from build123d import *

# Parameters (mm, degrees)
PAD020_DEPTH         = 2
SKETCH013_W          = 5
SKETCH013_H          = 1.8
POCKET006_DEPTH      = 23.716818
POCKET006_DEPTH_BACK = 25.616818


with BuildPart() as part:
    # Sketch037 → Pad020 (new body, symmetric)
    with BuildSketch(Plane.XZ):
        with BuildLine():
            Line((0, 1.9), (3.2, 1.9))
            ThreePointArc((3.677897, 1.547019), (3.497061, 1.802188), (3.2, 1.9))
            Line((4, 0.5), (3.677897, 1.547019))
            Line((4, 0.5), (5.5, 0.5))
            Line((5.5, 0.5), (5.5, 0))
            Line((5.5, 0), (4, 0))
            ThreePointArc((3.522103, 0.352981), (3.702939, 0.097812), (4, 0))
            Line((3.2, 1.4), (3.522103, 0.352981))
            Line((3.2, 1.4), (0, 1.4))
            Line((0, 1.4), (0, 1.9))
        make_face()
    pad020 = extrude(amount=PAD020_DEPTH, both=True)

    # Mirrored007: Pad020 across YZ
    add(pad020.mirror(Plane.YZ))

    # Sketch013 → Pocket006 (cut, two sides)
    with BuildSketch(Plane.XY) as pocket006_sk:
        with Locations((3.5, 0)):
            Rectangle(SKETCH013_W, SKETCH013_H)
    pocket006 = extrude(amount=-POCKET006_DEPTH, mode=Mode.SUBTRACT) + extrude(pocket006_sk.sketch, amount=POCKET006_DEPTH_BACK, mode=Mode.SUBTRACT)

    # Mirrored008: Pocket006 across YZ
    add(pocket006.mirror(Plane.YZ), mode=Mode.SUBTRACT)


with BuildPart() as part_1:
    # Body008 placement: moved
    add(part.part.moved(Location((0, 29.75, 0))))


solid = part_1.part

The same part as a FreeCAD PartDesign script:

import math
import FreeCAD as App
import Part
import Sketcher

V = App.Vector
Q = App.Units.Quantity


def add_polygon(sketch, points):
    """Adds a closed chain of lines whose ends are joined by coincident constraints."""
    first, n = sketch.GeometryCount, len(points)
    for a, b in zip(points, points[1:] + points[:1]):
        sketch.addGeometry(Part.LineSegment(App.Vector(*a, 0), App.Vector(*b, 0)), False)
    for i in range(n):
        sketch.addConstraint(Sketcher.Constraint("Coincident", first + i, 2, first + (i + 1) % n, 1))

doc = App.newDocument("Part")
params = doc.addObject("Spreadsheet::Sheet", "Params")
for row, (alias, value) in enumerate([
    ("sketch1_radius", "0.499999 mm"),
    ("sketch1_width", "3.2 mm"),
    ("sketch1_width2", "1.5 mm"),
    ("pad1_length", "4 mm"),
    ("sketch2_width", "5 mm"),
    ("sketch2_height", "1.8 mm"),
], start=1):
    params.set(f"A{row}", alias)
    params.set(f"B{row}", "=" + value)
    params.setAlias(f"B{row}", alias)

body = doc.addObject("PartDesign::Body", "Body")

sketch1 = body.newObject("Sketcher::SketchObject", "Sketch")
sketch1.AttachmentSupport = (doc.getObject("XZ_Plane"), [""])
sketch1.MapMode = "FlatFace"
sketch1.addGeometry(Part.LineSegment(V(3.2, 1.9, 0), V(0, 1.9, 0)), False)
sketch1.addGeometry(Part.LineSegment(V(0, 1.9, 0), V(0, 1.4, 0)), False)
sketch1.addGeometry(Part.LineSegment(V(0, 1.4, 0), V(3.2, 1.4, 0)), False)
sketch1.addGeometry(Part.LineSegment(V(3.2, 1.4, 0), V(3.52, 0.35, 0)), False)
sketch1.addGeometry(Part.ArcOfCircle(Part.Circle(V(4, 0.5, 0), V(0, 0, 1), 0.5), math.radians(-163), math.radians(-90)), False)
sketch1.addGeometry(Part.LineSegment(V(4, 0, 0), V(5.5, 0, 0)), False)
sketch1.addGeometry(Part.LineSegment(V(5.5, 0, 0), V(5.5, 0.5, 0)), False)
sketch1.addGeometry(Part.LineSegment(V(5.5, 0.5, 0), V(4, 0.5, 0)), False)
sketch1.addGeometry(Part.LineSegment(V(4, 0.5, 0), V(3.68, 1.55, 0)), False)
sketch1.addGeometry(Part.ArcOfCircle(Part.Circle(V(3.2, 1.4, 0), V(0, 0, 1), 0.5), math.radians(17), math.radians(90)), False)
sketch1.addConstraint(Sketcher.Constraint("Coincident", 0, 2, 1, 1))
sketch1.addConstraint(Sketcher.Constraint("Coincident", 1, 2, 2, 1))
sketch1.addConstraint(Sketcher.Constraint("Coincident", 2, 2, 3, 1))
sketch1.addConstraint(Sketcher.Constraint("Coincident", 3, 2, 4, 1))
sketch1.addConstraint(Sketcher.Constraint("Coincident", 4, 2, 5, 1))
sketch1.addConstraint(Sketcher.Constraint("Coincident", 5, 2, 6, 1))
sketch1.addConstraint(Sketcher.Constraint("Coincident", 6, 2, 7, 1))
sketch1.addConstraint(Sketcher.Constraint("Coincident", 7, 2, 8, 1))
sketch1.addConstraint(Sketcher.Constraint("Coincident", 8, 2, 9, 1))
sketch1.addConstraint(Sketcher.Constraint("Coincident", 9, 2, 0, 1))
sketch1.addConstraint(Sketcher.Constraint("Horizontal", 0))
sketch1.addConstraint(Sketcher.Constraint("Vertical", 1))
sketch1.addConstraint(Sketcher.Constraint("Horizontal", 2))
sketch1.addConstraint(Sketcher.Constraint("Horizontal", 5))
sketch1.addConstraint(Sketcher.Constraint("Vertical", 6))
sketch1.addConstraint(Sketcher.Constraint("Horizontal", 7))
sketch1.addConstraint(Sketcher.Constraint("Coincident", 2, 2, 9, 3))
sketch1.addConstraint(Sketcher.Constraint("Coincident", 7, 2, 4, 3))
sketch1.addConstraint(Sketcher.Constraint("Equal", 4, 9))
sketch1.addConstraint(Sketcher.Constraint("PointOnObject", 0, 2, -2))
sketch1.addConstraint(Sketcher.Constraint("PointOnObject", 4, 2, -1))
sketch1.addConstraint(Sketcher.Constraint("Vertical", 4, 2, 7, 2))
sketch1.addConstraint(Sketcher.Constraint("Vertical", 2, 2, 9, 2))
sketch1.addConstraint(Sketcher.Constraint("Equal", 3, 8))
sketch1.addConstraint(Sketcher.Constraint("Radius", 4, Q("0.499999 mm")))
sketch1.addConstraint(Sketcher.Constraint("DistanceX", 0, 2, 0, 1, Q("3.2 mm")))
sketch1.addConstraint(Sketcher.Constraint("DistanceX", 5, 1, 5, 2, Q("1.5 mm")))
sketch1.addConstraint(Sketcher.Constraint("DistanceX", -1, 1, 4, 3, Q("3.999999 mm")))
sketch1.addConstraint(Sketcher.Constraint("DistanceY", -1, 1, 9, 3, Q("1.400001 mm")))
sketch1.addConstraint(Sketcher.Constraint("DistanceX", 9, 3, 3, 2, Q("0.322102 mm")))
sketch1.setExpression("Constraints[24]", "Params.sketch1_radius")
sketch1.setExpression("Constraints[25]", "Params.sketch1_width")
sketch1.setExpression("Constraints[26]", "Params.sketch1_width2")
pad1 = body.newObject("PartDesign::Pad", "Pad")
pad1.Profile = sketch1
pad1.setExpression("Length", "Params.pad1_length")
pad1.Midplane = True
doc.recompute()

mirrored = body.newObject("PartDesign::Mirrored", "Mirrored")
mirrored.Originals = [pad1]
mirrored.MirrorPlane = (doc.getObject("YZ_Plane"), [""])
body.Tip = mirrored

sketch2 = body.newObject("Sketcher::SketchObject", "Sketch001")
sketch2.AttachmentSupport = (doc.getObject("XY_Plane"), [""])
sketch2.MapMode = "FlatFace"
add_polygon(sketch2, [(1, 0.9), (1, -0.9), (6, -0.9), (6, 0.9)])
sketch2.addConstraint(Sketcher.Constraint("Vertical", 0))
sketch2.addConstraint(Sketcher.Constraint("Horizontal", 1))
sketch2.addConstraint(Sketcher.Constraint("Vertical", 2))
sketch2.addConstraint(Sketcher.Constraint("Horizontal", 3))
sketch2.addConstraint(Sketcher.Constraint("DistanceX", 1, 1, 1, 2, Q("5 mm")))
sketch2.addConstraint(Sketcher.Constraint("DistanceY", 0, 2, 0, 1, Q("1.8 mm")))
sketch2.addConstraint(Sketcher.Constraint("DistanceX", -1, 1, 0, 2, Q("1 mm")))
sketch2.addConstraint(Sketcher.Constraint("DistanceY", 0, 2, -1, 1, Q("0.9 mm")))
sketch2.setExpression("Constraints[8]", "Params.sketch2_width")
sketch2.setExpression("Constraints[9]", "Params.sketch2_height")
pocket1 = body.newObject("PartDesign::Pocket", "Pocket")
pocket1.Profile = sketch2
pocket1.Type = "ThroughAll"
pocket1.Midplane = True
doc.recompute()

mirrored2 = body.newObject("PartDesign::Mirrored", "Mirrored001")
mirrored2.Originals = [pocket1]
mirrored2.MirrorPlane = (doc.getObject("YZ_Plane"), [""])
body.Tip = mirrored2
body2 = doc.addObject("PartDesign::Body", "Body001")
doc.recompute()

body.Placement = App.Placement(V(0, 29.75, 0), App.Rotation(V(0, 0, 1), 0))
boolean = body2.newObject("PartDesign::Boolean", "Boolean")
boolean.Type = "Fuse"
boolean.addObjects([body])

doc.recompute()
